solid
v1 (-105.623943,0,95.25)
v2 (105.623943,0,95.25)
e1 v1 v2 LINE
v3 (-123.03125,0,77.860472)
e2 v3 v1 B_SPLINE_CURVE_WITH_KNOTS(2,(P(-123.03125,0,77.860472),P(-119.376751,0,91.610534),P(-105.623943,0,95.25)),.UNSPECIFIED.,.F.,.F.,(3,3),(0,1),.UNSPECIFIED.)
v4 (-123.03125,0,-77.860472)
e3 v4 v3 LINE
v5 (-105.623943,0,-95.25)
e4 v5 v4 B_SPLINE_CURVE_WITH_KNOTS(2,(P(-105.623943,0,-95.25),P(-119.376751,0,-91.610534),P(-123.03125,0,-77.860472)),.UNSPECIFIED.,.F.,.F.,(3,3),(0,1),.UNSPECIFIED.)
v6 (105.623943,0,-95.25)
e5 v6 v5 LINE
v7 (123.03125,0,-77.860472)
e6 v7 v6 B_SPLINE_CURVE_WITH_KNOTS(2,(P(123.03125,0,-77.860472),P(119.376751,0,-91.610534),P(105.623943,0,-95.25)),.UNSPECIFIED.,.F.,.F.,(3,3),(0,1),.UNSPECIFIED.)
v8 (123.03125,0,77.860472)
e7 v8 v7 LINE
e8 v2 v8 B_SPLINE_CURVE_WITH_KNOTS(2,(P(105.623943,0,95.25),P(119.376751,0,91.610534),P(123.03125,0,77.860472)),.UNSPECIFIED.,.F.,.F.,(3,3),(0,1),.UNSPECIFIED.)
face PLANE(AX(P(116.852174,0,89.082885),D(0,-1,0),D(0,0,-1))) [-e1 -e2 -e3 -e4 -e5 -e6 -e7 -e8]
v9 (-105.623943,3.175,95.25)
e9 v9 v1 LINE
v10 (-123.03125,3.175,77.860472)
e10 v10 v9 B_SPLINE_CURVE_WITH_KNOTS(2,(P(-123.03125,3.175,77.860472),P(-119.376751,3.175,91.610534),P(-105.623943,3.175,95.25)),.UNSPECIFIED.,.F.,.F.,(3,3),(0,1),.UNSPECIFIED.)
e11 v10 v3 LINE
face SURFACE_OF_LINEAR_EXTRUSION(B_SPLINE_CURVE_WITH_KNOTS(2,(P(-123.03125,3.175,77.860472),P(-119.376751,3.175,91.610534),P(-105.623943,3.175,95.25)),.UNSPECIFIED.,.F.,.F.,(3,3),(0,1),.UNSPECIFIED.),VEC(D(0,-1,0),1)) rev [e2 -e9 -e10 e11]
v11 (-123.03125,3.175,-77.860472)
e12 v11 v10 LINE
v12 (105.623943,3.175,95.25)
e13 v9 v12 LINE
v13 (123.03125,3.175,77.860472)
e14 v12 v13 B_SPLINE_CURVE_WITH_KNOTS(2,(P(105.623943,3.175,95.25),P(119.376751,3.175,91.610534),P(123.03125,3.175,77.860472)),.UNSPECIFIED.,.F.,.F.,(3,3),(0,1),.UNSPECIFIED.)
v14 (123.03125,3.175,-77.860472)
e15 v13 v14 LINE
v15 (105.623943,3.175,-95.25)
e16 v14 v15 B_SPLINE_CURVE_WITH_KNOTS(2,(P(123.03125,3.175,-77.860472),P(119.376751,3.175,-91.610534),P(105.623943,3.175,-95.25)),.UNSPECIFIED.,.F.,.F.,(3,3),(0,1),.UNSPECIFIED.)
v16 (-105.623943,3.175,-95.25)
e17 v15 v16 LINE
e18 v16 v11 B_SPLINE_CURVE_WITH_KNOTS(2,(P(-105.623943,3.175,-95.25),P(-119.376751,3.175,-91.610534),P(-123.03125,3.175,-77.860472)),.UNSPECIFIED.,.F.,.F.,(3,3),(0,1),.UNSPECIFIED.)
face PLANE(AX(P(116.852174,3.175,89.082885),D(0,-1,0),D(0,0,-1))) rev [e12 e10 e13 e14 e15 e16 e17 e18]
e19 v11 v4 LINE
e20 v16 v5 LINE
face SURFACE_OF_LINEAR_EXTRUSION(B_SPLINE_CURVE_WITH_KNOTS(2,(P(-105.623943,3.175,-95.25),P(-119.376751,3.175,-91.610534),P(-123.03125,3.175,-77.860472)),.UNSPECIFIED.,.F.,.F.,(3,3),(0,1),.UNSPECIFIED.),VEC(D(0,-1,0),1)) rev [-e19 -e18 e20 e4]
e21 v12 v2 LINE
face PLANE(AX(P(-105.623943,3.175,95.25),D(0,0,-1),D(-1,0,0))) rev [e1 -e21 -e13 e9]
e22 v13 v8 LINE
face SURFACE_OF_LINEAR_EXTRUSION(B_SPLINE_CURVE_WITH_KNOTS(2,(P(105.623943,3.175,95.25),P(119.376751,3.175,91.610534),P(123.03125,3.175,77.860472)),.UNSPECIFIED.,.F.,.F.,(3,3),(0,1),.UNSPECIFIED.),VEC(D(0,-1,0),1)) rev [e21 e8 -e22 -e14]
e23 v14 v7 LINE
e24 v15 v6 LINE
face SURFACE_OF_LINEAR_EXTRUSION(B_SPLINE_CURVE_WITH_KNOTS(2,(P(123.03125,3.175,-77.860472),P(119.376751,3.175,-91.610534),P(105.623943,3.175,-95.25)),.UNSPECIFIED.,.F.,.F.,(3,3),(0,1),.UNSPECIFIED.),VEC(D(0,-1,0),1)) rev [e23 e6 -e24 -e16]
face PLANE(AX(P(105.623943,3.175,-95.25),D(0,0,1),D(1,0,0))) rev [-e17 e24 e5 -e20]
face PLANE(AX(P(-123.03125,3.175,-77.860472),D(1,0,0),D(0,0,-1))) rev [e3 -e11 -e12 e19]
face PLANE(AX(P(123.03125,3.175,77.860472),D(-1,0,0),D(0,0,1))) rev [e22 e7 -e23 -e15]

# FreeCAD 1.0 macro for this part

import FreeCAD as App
import Part
import Sketcher
from FreeCAD import Vector
Q = App.Units.Quantity

doc = App.newDocument("Part")
body = doc.addObject("PartDesign::Body", "Body")

# Sketch on XZ plane
sketch1 = doc.addObject("Sketcher::SketchObject", "Sketch")
body.addObject(sketch1)
sketch1.AttachmentSupport = (doc.XZ_Plane, [""])
sketch1.MapMode = "FlatFace"
sketch1.addGeometry(Part.LineSegment(Vector(123.03125, 77.860472, 0), Vector(123.03125, -77.860472, 0)), False)
sketch1.addGeometry(Part.BSplineCurve([Vector(105.623943, -95.25, 0), Vector(119.376751, -91.610534, 0), Vector(123.03125, -77.860472, 0)], [3, 3], [0, 1], False, 2, [1, 1, 1], False), False)
sketch1.addGeometry(Part.LineSegment(Vector(105.623943, -95.25, 0), Vector(-105.623943, -95.25, 0)), False)
sketch1.addGeometry(Part.BSplineCurve([Vector(-105.623943, -95.25, 0), Vector(-119.376751, -91.610534, 0), Vector(-123.03125, -77.860472, 0)], [3, 3], [0, 1], False, 2, [1, 1, 1], False), False)
sketch1.addGeometry(Part.LineSegment(Vector(-123.03125, -77.860472, 0), Vector(-123.03125, 77.860472, 0)), False)
sketch1.addGeometry(Part.BSplineCurve([Vector(-105.623943, 95.25, 0), Vector(-119.376751, 91.610534, 0), Vector(-123.03125, 77.860472, 0)], [3, 3], [0, 1], False, 2, [1, 1, 1], False), False)
sketch1.addGeometry(Part.LineSegment(Vector(-105.623943, 95.25, 0), Vector(105.623943, 95.25, 0)), False)
sketch1.addGeometry(Part.BSplineCurve([Vector(105.623943, 95.25, 0), Vector(119.376751, 91.610534, 0), Vector(123.03125, 77.860472, 0)], [3, 3], [0, 1], False, 2, [1, 1, 1], False), False)
sketch1.addConstraint(Sketcher.Constraint("Block", 1))
sketch1.addConstraint(Sketcher.Constraint("Block", 3))
sketch1.addConstraint(Sketcher.Constraint("Block", 5))
sketch1.addConstraint(Sketcher.Constraint("Block", 7))
sketch1.addConstraint(Sketcher.Constraint("Coincident", 0, 2, 1, 2))
sketch1.addConstraint(Sketcher.Constraint("Coincident", 1, 1, 2, 1))
sketch1.addConstraint(Sketcher.Constraint("Coincident", 2, 2, 3, 1))
sketch1.addConstraint(Sketcher.Constraint("Coincident", 3, 2, 4, 1))
sketch1.addConstraint(Sketcher.Constraint("Coincident", 4, 2, 5, 2))
sketch1.addConstraint(Sketcher.Constraint("Coincident", 5, 1, 6, 1))
sketch1.addConstraint(Sketcher.Constraint("Coincident", 6, 2, 7, 1))
sketch1.addConstraint(Sketcher.Constraint("Coincident", 7, 2, 0, 1))
pad1 = doc.addObject("PartDesign::Pad", "Pad")
body.addObject(pad1)
pad1.Profile = sketch1
pad1.Length = Q("0.125 in")
pad1.Reversed = True

doc.recompute()
